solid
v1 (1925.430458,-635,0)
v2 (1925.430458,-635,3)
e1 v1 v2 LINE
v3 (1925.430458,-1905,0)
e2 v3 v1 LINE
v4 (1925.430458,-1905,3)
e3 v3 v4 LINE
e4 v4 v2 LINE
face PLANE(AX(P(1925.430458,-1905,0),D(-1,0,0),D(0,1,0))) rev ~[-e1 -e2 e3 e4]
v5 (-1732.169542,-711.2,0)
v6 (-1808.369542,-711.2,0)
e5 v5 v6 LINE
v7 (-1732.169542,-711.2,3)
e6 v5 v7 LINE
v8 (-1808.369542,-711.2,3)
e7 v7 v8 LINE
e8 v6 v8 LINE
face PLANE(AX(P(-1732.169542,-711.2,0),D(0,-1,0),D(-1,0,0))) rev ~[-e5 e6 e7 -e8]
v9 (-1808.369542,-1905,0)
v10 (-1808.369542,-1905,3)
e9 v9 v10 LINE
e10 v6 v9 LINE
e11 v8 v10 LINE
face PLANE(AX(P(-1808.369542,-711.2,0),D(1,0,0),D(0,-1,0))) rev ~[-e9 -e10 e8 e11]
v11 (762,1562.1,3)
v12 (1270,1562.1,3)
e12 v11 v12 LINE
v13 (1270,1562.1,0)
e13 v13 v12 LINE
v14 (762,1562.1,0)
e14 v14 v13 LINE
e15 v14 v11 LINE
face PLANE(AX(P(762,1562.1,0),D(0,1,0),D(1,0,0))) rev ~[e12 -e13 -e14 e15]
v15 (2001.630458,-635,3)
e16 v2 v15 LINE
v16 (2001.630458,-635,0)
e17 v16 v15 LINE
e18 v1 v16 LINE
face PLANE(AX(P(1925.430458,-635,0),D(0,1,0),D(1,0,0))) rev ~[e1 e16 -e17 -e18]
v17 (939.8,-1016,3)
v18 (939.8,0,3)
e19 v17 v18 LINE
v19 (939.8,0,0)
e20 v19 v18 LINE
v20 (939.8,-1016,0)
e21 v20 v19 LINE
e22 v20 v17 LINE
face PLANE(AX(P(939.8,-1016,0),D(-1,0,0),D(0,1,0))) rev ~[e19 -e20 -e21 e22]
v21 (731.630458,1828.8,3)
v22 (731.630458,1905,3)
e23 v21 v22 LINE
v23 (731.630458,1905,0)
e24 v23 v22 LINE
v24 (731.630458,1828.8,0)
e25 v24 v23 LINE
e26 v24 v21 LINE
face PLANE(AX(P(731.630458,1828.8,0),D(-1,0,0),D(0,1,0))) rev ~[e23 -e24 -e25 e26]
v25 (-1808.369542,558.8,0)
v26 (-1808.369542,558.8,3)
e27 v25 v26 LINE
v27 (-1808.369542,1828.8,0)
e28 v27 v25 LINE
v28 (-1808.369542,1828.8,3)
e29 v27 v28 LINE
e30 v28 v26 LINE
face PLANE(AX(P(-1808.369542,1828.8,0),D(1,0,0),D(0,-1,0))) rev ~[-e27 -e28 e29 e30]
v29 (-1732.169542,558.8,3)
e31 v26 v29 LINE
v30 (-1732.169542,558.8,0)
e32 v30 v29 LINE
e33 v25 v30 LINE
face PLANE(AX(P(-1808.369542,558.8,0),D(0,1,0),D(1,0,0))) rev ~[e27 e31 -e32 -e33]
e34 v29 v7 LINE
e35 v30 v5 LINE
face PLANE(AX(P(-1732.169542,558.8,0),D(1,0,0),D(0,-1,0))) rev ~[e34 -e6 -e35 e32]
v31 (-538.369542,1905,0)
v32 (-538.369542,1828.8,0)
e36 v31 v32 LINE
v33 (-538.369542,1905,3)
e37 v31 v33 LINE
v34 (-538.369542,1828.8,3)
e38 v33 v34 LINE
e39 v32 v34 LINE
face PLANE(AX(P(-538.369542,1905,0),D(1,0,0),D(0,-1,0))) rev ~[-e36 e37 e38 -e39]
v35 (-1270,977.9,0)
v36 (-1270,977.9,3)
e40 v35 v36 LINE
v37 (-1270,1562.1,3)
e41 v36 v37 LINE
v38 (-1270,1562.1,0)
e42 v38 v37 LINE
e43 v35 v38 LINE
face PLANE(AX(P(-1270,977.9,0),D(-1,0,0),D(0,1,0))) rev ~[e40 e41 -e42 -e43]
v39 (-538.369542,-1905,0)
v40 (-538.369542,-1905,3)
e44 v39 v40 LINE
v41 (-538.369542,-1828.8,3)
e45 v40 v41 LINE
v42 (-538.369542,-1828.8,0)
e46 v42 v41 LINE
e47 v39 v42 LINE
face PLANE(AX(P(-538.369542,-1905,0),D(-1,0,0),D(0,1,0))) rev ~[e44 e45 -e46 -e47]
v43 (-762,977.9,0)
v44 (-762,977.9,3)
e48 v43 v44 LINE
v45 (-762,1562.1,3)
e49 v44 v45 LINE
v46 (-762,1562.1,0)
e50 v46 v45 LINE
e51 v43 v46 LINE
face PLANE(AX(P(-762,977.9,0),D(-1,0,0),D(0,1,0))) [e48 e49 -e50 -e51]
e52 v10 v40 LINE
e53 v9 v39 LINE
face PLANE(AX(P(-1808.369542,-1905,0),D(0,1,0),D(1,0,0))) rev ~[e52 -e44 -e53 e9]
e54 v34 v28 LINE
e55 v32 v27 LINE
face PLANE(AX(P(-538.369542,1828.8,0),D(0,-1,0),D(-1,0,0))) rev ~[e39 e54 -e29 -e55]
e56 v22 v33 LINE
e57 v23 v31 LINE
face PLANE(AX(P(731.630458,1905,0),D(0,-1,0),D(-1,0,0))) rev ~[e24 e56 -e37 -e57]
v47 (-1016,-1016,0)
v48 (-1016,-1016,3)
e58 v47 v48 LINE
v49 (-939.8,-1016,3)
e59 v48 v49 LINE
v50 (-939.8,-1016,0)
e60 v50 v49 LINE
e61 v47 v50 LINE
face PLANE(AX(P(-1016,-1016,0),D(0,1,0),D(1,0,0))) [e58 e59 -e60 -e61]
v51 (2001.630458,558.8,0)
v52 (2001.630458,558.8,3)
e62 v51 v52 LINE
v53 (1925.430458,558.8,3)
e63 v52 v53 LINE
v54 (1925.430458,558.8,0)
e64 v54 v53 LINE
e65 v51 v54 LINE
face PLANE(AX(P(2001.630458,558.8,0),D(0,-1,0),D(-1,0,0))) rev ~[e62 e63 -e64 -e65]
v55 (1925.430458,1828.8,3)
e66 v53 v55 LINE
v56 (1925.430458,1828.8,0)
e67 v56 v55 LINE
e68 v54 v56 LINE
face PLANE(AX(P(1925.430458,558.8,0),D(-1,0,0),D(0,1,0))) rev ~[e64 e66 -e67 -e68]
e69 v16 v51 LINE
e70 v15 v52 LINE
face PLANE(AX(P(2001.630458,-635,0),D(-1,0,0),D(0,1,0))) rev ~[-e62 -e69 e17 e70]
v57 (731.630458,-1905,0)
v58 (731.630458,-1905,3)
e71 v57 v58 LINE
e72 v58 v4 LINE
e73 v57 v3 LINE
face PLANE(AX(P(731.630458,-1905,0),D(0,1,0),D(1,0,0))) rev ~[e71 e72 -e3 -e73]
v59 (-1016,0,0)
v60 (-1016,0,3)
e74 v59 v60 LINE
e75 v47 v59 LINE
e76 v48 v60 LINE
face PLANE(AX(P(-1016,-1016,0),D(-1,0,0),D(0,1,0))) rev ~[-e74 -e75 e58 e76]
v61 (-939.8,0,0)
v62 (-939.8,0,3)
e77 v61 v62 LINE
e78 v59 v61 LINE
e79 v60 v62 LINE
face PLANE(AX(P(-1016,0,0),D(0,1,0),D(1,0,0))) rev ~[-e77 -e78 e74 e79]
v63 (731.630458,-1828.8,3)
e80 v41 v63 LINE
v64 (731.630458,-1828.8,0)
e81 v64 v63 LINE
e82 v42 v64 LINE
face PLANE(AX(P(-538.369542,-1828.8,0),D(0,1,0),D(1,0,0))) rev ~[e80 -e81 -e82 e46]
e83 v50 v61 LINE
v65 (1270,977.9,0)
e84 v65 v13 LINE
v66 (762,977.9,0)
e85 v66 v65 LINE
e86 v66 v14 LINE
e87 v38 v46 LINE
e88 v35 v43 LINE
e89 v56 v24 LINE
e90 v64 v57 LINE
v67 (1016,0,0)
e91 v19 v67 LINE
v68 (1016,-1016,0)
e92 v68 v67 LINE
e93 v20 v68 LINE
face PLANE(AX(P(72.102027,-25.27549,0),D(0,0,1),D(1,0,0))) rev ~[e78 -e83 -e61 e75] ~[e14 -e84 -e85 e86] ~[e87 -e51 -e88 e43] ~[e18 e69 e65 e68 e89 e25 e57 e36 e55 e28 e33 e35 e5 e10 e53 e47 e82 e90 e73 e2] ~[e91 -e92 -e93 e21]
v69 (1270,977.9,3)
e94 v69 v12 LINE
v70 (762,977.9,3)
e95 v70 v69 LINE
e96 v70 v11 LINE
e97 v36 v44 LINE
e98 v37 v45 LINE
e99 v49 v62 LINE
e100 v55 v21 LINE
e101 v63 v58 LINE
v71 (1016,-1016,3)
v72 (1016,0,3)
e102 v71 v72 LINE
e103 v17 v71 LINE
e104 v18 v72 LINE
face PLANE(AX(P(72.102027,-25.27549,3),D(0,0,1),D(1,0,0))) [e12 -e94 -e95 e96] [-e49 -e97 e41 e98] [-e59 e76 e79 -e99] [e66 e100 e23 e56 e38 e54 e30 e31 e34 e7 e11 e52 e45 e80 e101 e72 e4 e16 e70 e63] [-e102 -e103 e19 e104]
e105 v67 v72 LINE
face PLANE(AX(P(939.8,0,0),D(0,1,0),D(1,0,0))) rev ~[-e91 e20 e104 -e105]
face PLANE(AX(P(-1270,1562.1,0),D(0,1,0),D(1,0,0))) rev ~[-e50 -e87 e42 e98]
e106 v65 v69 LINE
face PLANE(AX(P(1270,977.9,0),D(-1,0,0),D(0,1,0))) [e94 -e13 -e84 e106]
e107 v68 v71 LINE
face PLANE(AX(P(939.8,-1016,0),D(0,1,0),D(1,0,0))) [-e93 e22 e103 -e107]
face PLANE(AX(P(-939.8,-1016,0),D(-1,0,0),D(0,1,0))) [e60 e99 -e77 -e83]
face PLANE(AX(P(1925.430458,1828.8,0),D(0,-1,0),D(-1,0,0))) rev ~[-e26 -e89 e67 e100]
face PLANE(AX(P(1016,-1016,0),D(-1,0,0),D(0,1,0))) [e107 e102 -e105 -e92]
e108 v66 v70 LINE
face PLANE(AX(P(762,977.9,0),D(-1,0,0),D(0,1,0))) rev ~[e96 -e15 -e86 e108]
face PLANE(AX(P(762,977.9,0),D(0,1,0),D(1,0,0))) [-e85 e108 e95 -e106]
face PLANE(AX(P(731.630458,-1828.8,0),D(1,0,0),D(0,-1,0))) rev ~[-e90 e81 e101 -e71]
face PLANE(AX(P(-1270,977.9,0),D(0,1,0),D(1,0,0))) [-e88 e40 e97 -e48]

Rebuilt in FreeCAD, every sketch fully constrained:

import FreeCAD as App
import Part
import Sketcher

V = App.Vector
Q = App.Units.Quantity


def add_polygon(sketch, points):
    """Adds a closed chain of lines whose ends are joined by coincident constraints."""
    first, n = sketch.GeometryCount, len(points)
    for a, b in zip(points, points[1:] + points[:1]):
        sketch.addGeometry(Part.LineSegment(App.Vector(*a, 0), App.Vector(*b, 0)), False)
    for i in range(n):
        sketch.addConstraint(Sketcher.Constraint("Coincident", first + i, 2, first + (i + 1) % n, 1))

doc = App.newDocument("Part")
params = doc.addObject("Spreadsheet::Sheet", "Params")
for row, (alias, value) in enumerate([
    ("sketch1_width", "50 in"),
    ("sketch1_width2", "3 in"),
    ("sketch1_width3", "47 in"),
    ("sketch1_width4", "20 in"),
    ("sketch1_height", "40 in"),
    ("pad1_length", "3 mm"),
], start=1):
    params.set(f"A{row}", alias)
    params.set(f"B{row}", "=" + value)
    params.setAlias(f"B{row}", alias)

body = doc.addObject("PartDesign::Body", "Body")

sketch1 = body.newObject("Sketcher::SketchObject", "Sketch")
sketch1.AttachmentSupport = (doc.getObject("XY_Plane"), [""])
sketch1.MapMode = "FlatFace"
add_polygon(sketch1, [(732, 1829), (732, 1905), (-538, 1905), (-538, 1829), (-1808, 1829), (-1808, 559), (-1732, 559), (-1732, -711), (-1808, -711), (-1808, -1905), (-538, -1905), (-538, -1829), (732, -1829), (732, -1905), (1925, -1905), (1925, -635), (2002, -635), (2002, 559), (1925, 559), (1925, 1829)])
add_polygon(sketch1, [(-940, -1016), (-1016, -1016), (-1016, 0), (-940, 0)])
add_polygon(sketch1, [(1016, -1016), (940, -1016), (940, 0), (1016, 0)])
add_polygon(sketch1, [(-762, 978), (-1270, 978), (-1270, 1562), (-762, 1562)])
add_polygon(sketch1, [(1270, 978), (762, 978), (762, 1562), (1270, 1562)])
sketch1.addConstraint([
    Sketcher.Constraint("Vertical", 0),
    Sketcher.Constraint("Horizontal", 1),
    Sketcher.Constraint("Vertical", 2),
    Sketcher.Constraint("Horizontal", 3),
    Sketcher.Constraint("Vertical", 4),
    Sketcher.Constraint("Horizontal", 5),
    Sketcher.Constraint("Vertical", 6),
    Sketcher.Constraint("Horizontal", 7),
    Sketcher.Constraint("Vertical", 8),
    Sketcher.Constraint("Horizontal", 9),
    Sketcher.Constraint("Vertical", 10),
    Sketcher.Constraint("Horizontal", 11),
    Sketcher.Constraint("Vertical", 12),
    Sketcher.Constraint("Horizontal", 13),
    Sketcher.Constraint("Vertical", 14),
    Sketcher.Constraint("Horizontal", 15),
    Sketcher.Constraint("Vertical", 16),
    Sketcher.Constraint("Horizontal", 17),
    Sketcher.Constraint("Vertical", 18),
    Sketcher.Constraint("Horizontal", 19),
    Sketcher.Constraint("Horizontal", 20),
    Sketcher.Constraint("Vertical", 21),
    Sketcher.Constraint("Horizontal", 22),
    Sketcher.Constraint("Vertical", 23),
    Sketcher.Constraint("Horizontal", 24),
    Sketcher.Constraint("Vertical", 25),
    Sketcher.Constraint("Horizontal", 26),
    Sketcher.Constraint("Vertical", 27),
    Sketcher.Constraint("Horizontal", 28),
    Sketcher.Constraint("Vertical", 29),
    Sketcher.Constraint("Horizontal", 30),
    Sketcher.Constraint("Vertical", 31),
    Sketcher.Constraint("Horizontal", 32),
    Sketcher.Constraint("Vertical", 33),
    Sketcher.Constraint("Horizontal", 34),
    Sketcher.Constraint("Vertical", 35),
    Sketcher.Constraint("Symmetric", 22, 2, 25, 2, -1, 1),
    Sketcher.Constraint("Symmetric", 21, 2, 26, 2, -2),
    Sketcher.Constraint("Symmetric", 31, 2, 32, 2, -2),
    Sketcher.Constraint("Symmetric", 29, 2, 34, 2, -2),
    Sketcher.Constraint("Symmetric", 1, 2, 9, 2, -1),
    Sketcher.Constraint("Symmetric", 0, 2, 12, 2, -1),
    Sketcher.Constraint("Horizontal", 5, 2, 16, 2),
    Sketcher.Constraint("Horizontal", 3, 2, 18, 2),
    Sketcher.Constraint("Horizontal", 23, 2, 24, 2),
    Sketcher.Constraint("Vertical", 4, 2, 7, 2),
    Sketcher.Constraint("Vertical", 14, 2, 17, 2),
    Sketcher.Constraint("Equal", 1, 3),
    Sketcher.Constraint("Equal", 7, 15),
    Sketcher.Constraint("Equal", 17, 20),
    Sketcher.Constraint("Equal", 26, 0),
    Sketcher.Constraint("Equal", 11, 4),
    Sketcher.Constraint("Equal", 4, 6),
    Sketcher.Constraint("Equal", 19, 8),
    Sketcher.Constraint("Equal", 2, 10),
    Sketcher.Constraint("Equal", 6, 14),
    Sketcher.Constraint("DistanceX", 1, 2, 1, 1, Q("50 in")),
    Sketcher.Constraint("DistanceX", 5, 1, 5, 2, Q("3 in")),
    Sketcher.Constraint("DistanceX", 13, 1, 13, 2, Q("47 in")),
    Sketcher.Constraint("DistanceX", 28, 2, 28, 1, Q("20 in")),
    Sketcher.Constraint("DistanceY", 21, 1, 21, 2, Q("40 in")),
    Sketcher.Constraint("DistanceY", 29, 1, 29, 2, Q("23 in")),
    Sketcher.Constraint("DistanceX", 20, 2, -1, 1, Q("40 in")),
    Sketcher.Constraint("DistanceX", 28, 2, -1, 1, Q("50 in")),
    Sketcher.Constraint("DistanceY", -1, 1, 28, 2, Q("38.5 in")),
    Sketcher.Constraint("DistanceX", -1, 1, 0, 2, 731.630458),
])
sketch1.setExpression("Constraints[92]", "Params.sketch1_width")
sketch1.setExpression("Constraints[93]", "Params.sketch1_width2")
sketch1.setExpression("Constraints[94]", "Params.sketch1_width3")
sketch1.setExpression("Constraints[95]", "Params.sketch1_width4")
sketch1.setExpression("Constraints[96]", "Params.sketch1_height")
pad1 = body.newObject("PartDesign::Pad", "Pad")
pad1.Profile = sketch1
pad1.setExpression("Length", "Params.pad1_length")

doc.recompute()
